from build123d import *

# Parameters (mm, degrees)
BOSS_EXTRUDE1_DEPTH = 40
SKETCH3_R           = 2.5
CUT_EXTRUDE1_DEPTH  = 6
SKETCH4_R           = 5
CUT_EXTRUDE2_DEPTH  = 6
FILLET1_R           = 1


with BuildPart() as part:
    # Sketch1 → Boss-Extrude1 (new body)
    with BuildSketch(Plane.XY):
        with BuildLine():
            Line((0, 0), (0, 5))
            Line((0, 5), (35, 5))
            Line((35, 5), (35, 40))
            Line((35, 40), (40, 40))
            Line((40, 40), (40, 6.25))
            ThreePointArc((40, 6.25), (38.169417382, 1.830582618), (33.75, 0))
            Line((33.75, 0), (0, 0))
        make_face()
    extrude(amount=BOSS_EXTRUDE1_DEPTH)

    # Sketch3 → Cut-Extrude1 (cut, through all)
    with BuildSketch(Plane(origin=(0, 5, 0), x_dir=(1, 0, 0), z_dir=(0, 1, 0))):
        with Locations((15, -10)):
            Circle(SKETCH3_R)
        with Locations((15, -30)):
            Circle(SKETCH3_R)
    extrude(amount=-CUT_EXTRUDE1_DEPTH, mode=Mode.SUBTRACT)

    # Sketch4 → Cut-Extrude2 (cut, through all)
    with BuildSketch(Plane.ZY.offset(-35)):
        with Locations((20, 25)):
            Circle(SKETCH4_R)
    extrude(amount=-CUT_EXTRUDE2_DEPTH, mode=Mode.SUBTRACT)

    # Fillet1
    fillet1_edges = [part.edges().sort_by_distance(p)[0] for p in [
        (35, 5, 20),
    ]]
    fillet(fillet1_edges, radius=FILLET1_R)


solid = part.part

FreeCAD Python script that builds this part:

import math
import FreeCAD as App
import Part
import Sketcher
Q = App.Units.Quantity


def edges_at(feature, points):
    """Names of the edges that pass closest to the given points."""
    edges = feature.Shape.Edges
    near = lambda p: min(range(len(edges)), key=lambda i: edges[i].distToShape(Part.Vertex(*p))[0])
    return sorted({f"Edge{near(p) + 1}" for p in points})

doc = App.newDocument("Part")
body = doc.addObject("PartDesign::Body", "Body")

# Sketch on XY plane
sketch1 = body.newObject("Sketcher::SketchObject", "Sketch")
sketch1.AttachmentSupport = (doc.getObject("XY_Plane"), [""])
sketch1.MapMode = "FlatFace"
sketch1.addGeometry(Part.LineSegment(App.Vector(0, 5, 0), App.Vector(0, 0, 0)), False)
sketch1.addGeometry(Part.LineSegment(App.Vector(0, 0, 0), App.Vector(33.75, 0, 0)), False)
sketch1.addGeometry(Part.ArcOfCircle(Part.Circle(App.Vector(33.75, 6.25, 0), App.Vector(0, 0, 1), 6.25), math.radians(-90), math.radians(0)), False)
sketch1.addGeometry(Part.LineSegment(App.Vector(40, 6.25, 0), App.Vector(40, 40, 0)), False)
sketch1.addGeometry(Part.LineSegment(App.Vector(40, 40, 0), App.Vector(35, 40, 0)), False)
sketch1.addGeometry(Part.LineSegment(App.Vector(35, 40, 0), App.Vector(35, 5, 0)), False)
sketch1.addGeometry(Part.LineSegment(App.Vector(35, 5, 0), App.Vector(0, 5, 0)), False)
sketch1.addConstraint(Sketcher.Constraint("Coincident", 0, 2, 1, 1))
sketch1.addConstraint(Sketcher.Constraint("Tangent", 1, 2, 2, 1))
sketch1.addConstraint(Sketcher.Constraint("Tangent", 2, 2, 3, 1))
sketch1.addConstraint(Sketcher.Constraint("Coincident", 3, 2, 4, 1))
sketch1.addConstraint(Sketcher.Constraint("Coincident", 4, 2, 5, 1))
sketch1.addConstraint(Sketcher.Constraint("Coincident", 5, 2, 6, 1))
sketch1.addConstraint(Sketcher.Constraint("Coincident", 6, 2, 0, 1))
sketch1.addConstraint(Sketcher.Constraint("Vertical", 0))
sketch1.addConstraint(Sketcher.Constraint("Horizontal", 1))
sketch1.addConstraint(Sketcher.Constraint("Vertical", 3))
sketch1.addConstraint(Sketcher.Constraint("Horizontal", 4))
sketch1.addConstraint(Sketcher.Constraint("Vertical", 5))
sketch1.addConstraint(Sketcher.Constraint("Horizontal", 6))
sketch1.addConstraint(Sketcher.Constraint("Coincident", 0, 2, -1, 1))
sketch1.addConstraint(Sketcher.Constraint("Equal", 4, 0))
sketch1.addConstraint(Sketcher.Constraint("Equal", 1, 3))
sketch1.addConstraint(Sketcher.Constraint("DistanceX", 4, 2, 4, 1, Q("5 mm")))
sketch1.addConstraint(Sketcher.Constraint("DistanceX", 6, 2, 6, 1, Q("35 mm")))
sketch1.addConstraint(Sketcher.Constraint("Radius", 2, Q("6.25 mm")))
pad1 = body.newObject("PartDesign::Pad", "Pad")
pad1.Profile = sketch1
pad1.Length = 40

# Sketch on XZ plane
sketch2 = body.newObject("Sketcher::SketchObject", "Sketch001")
sketch2.AttachmentSupport = (doc.getObject("XZ_Plane"), [""])
sketch2.MapMode = "FlatFace"
sketch2.AttachmentOffset = App.Placement(App.Vector(0, 0, -5), App.Rotation())
sketch2.addGeometry(Part.Circle(App.Vector(15, 10, 0), App.Vector(0, 0, 1), 2.5), False)
sketch2.addGeometry(Part.Circle(App.Vector(15, 30, 0), App.Vector(0, 0, 1), 2.5), False)
sketch2.addConstraint(Sketcher.Constraint("Equal", 0, 1))
sketch2.addConstraint(Sketcher.Constraint("Vertical", 0, 3, 1, 3))
sketch2.addConstraint(Sketcher.Constraint("Diameter", 0, Q("5 mm")))
sketch2.addConstraint(Sketcher.Constraint("DistanceX", -1, 1, 0, 3, Q("15 mm")))
sketch2.addConstraint(Sketcher.Constraint("DistanceY", -1, 1, 0, 3, Q("10 mm")))
sketch2.addConstraint(Sketcher.Constraint("DistanceY", -1, 1, 1, 3, Q("30 mm")))
pocket1 = body.newObject("PartDesign::Pocket", "Pocket")
pocket1.Profile = sketch2
pocket1.Type = "ThroughAll"
pocket1.Reversed = True

# Sketch on YZ plane
sketch3 = body.newObject("Sketcher::SketchObject", "Sketch002")
sketch3.AttachmentSupport = (doc.getObject("YZ_Plane"), [""])
sketch3.MapMode = "FlatFace"
sketch3.AttachmentOffset = App.Placement(App.Vector(0, 0, 35), App.Rotation())
sketch3.addGeometry(Part.Circle(App.Vector(25, 20, 0), App.Vector(0, 0, 1), 5), False)
sketch3.addConstraint(Sketcher.Constraint("Diameter", 0, Q("10 mm")))
sketch3.addConstraint(Sketcher.Constraint("DistanceX", -1, 1, 0, 3, Q("25 mm")))
sketch3.addConstraint(Sketcher.Constraint("DistanceY", -1, 1, 0, 3, Q("20 mm")))
pocket2 = body.newObject("PartDesign::Pocket", "Pocket001")
pocket2.Profile = sketch3
pocket2.Type = "ThroughAll"
pocket2.Reversed = True
doc.recompute()

fillet = body.newObject("PartDesign::Fillet", "Fillet")
fillet.Base = (pocket2, edges_at(pocket2, [(35, 5, 20)]))
fillet.Radius = 1

doc.recompute()
